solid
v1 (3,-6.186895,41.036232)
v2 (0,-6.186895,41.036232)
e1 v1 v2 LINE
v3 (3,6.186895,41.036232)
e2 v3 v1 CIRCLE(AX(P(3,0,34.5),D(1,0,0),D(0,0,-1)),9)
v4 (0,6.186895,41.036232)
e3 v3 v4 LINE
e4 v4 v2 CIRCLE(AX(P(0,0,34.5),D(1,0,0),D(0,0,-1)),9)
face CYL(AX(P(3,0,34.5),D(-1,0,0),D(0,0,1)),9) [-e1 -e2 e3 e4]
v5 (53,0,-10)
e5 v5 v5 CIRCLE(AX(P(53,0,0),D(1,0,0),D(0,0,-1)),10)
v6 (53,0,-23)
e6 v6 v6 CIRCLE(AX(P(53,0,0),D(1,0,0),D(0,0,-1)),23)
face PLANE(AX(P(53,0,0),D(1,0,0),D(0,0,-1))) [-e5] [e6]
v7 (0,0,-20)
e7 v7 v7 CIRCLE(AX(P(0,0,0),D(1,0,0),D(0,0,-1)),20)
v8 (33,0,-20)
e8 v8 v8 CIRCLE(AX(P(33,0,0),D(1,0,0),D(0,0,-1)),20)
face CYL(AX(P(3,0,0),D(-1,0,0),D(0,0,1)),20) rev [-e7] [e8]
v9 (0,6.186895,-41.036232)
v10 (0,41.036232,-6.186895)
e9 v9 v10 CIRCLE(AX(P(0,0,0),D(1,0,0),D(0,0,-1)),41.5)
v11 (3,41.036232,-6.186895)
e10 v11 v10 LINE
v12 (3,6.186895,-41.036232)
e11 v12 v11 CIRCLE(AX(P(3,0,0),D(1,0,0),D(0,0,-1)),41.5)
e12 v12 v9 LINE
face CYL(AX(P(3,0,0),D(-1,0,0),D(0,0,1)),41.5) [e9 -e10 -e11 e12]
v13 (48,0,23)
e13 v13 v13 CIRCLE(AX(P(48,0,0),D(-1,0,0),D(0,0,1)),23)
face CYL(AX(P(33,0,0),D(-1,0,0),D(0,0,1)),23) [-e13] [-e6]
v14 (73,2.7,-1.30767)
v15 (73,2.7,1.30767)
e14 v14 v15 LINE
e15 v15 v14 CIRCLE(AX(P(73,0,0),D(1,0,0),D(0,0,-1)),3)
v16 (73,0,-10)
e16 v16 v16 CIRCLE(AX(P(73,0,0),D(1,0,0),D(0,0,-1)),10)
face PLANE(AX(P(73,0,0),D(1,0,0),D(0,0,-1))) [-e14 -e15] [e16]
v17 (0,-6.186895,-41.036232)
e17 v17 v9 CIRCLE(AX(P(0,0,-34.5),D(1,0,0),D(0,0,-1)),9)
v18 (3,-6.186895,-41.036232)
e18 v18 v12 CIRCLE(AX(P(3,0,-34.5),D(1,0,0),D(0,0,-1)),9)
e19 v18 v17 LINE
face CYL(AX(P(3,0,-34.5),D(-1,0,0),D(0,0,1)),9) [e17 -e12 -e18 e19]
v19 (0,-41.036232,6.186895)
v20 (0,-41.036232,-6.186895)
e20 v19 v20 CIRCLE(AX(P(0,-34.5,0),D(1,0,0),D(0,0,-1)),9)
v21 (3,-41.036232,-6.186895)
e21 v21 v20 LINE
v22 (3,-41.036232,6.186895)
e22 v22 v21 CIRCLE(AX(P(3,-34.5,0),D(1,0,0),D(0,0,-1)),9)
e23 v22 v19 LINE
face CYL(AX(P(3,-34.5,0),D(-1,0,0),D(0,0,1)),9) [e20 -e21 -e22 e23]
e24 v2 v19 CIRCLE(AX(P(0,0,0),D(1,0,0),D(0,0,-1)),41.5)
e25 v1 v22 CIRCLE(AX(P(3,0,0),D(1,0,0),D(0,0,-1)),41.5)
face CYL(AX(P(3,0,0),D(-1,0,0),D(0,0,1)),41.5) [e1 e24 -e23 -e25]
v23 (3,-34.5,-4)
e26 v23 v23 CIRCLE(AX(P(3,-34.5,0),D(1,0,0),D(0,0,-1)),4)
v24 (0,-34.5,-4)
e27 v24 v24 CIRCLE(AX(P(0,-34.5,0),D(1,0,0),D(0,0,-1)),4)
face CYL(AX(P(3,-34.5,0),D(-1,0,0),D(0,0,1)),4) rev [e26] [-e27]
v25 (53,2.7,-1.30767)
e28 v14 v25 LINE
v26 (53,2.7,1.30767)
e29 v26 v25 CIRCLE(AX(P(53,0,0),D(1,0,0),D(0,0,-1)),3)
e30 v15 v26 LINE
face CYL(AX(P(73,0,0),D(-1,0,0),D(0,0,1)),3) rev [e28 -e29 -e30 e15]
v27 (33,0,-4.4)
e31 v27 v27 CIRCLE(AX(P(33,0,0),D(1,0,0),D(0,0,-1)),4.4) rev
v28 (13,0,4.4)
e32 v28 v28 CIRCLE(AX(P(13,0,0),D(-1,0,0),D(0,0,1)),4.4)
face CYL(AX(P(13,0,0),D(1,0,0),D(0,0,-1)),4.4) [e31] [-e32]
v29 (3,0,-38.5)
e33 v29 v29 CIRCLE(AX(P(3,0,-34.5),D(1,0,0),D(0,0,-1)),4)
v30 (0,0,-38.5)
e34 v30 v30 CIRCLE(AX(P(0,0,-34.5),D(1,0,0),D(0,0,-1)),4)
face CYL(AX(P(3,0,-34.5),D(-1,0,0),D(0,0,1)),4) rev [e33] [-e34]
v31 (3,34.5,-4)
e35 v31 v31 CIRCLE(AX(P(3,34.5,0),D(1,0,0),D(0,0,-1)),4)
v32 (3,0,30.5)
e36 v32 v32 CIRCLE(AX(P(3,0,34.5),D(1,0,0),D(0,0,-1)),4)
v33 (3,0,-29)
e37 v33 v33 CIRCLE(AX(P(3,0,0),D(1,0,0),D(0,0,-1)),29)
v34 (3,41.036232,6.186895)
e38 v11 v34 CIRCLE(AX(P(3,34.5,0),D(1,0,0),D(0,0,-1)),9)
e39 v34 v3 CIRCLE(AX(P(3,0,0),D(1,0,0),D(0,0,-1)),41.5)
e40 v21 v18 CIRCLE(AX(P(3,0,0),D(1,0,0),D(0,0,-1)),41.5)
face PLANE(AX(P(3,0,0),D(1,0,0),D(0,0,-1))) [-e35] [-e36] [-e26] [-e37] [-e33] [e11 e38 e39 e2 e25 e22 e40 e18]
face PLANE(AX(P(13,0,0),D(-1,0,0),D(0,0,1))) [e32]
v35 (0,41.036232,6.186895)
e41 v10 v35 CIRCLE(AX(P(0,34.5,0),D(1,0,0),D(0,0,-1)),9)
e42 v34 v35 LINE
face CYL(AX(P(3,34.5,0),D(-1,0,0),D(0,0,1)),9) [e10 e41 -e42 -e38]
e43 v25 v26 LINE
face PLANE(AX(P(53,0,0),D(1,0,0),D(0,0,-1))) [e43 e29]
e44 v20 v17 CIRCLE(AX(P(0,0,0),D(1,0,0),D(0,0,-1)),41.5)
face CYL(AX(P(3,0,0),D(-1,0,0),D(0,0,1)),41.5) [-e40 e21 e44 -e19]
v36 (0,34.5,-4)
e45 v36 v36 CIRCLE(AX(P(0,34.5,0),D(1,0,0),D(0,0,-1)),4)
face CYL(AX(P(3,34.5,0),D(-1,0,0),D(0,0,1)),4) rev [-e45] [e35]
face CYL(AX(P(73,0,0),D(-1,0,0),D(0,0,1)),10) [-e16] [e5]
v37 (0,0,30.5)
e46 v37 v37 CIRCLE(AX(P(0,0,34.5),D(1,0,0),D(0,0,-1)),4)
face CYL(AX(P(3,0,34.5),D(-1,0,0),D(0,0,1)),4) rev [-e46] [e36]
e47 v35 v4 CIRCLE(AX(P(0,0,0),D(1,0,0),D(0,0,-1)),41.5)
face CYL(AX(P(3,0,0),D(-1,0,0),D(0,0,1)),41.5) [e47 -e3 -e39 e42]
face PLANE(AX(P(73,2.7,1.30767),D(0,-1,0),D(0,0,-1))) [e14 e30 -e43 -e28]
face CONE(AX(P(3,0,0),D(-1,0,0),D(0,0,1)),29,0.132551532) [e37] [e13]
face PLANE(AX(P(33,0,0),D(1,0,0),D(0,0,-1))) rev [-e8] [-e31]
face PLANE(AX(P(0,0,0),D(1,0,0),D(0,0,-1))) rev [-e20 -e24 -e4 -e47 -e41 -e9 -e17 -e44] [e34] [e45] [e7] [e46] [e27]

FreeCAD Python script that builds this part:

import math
import FreeCAD as App
import Part
import Sketcher
from FreeCAD import Vector
Q = App.Units.Quantity


def add_polygon(sketch, points):
    """Adds a closed chain of lines whose ends are joined by coincident constraints."""
    first, n = sketch.GeometryCount, len(points)
    for a, b in zip(points, points[1:] + points[:1]):
        sketch.addGeometry(Part.LineSegment(App.Vector(*a, 0), App.Vector(*b, 0)), False)
    for i in range(n):
        sketch.addConstraint(Sketcher.Constraint("Coincident", first + i, 2, first + (i + 1) % n, 1))

doc = App.newDocument("Part")
params = doc.addObject("Spreadsheet::Sheet", "Params")
for row, (alias, value) in enumerate([
    ("sketch1_diameter", "8 mm"),
    ("sketch1_diameter2", "40 mm"),
    ("sketch1_radius", "9 mm"),
    ("sketch1_radius2", "41.5 mm"),
    ("pad1_length", "3 mm"),
    ("sketch2_diameter", "46 mm"),
    ("sketch2_diameter2", "40 mm"),
    ("pad2_length", "30 mm"),
    ("sketch3_diameter", "46 mm"),
    ("pad3_length", "20 mm"),
    ("sketch4_diameter", "8.8 mm"),
    ("pad4_length", "20 mm"),
    ("sketch5_width", "45 mm"),
    ("sketch5_height", "6 mm"),
    ("revolution_angle", "360 deg"),
    ("sketch6_diameter", "20 mm"),
    ("sketch6_radius", "3 mm"),
    ("pad5_length", "20 mm"),
], start=1):
    params.set(f"A{row}", alias)
    params.set(f"B{row}", "=" + value)
    params.setAlias(f"B{row}", alias)

body = doc.addObject("PartDesign::Body", "Body")

# Sketch on YZ plane
sketch1 = doc.addObject("Sketcher::SketchObject", "Sketch")
body.addObject(sketch1)
sketch1.AttachmentSupport = (doc.YZ_Plane, [""])
sketch1.MapMode = "FlatFace"
sketch1.addGeometry([
    Part.ArcOfCircle(Part.Circle(Vector(34.5, 0, 0), Vector(0, 0, 1), 9), math.radians(-43.427235), math.radians(43.427235)),  # 0
    Part.ArcOfCircle(Part.Circle(Vector(0, 0, 0), Vector(0, 0, 1), 41.5), math.radians(8.57372), math.radians(81.42628)),  # 1
    Part.ArcOfCircle(Part.Circle(Vector(0, 34.5, 0), Vector(0, 0, 1), 9), math.radians(46.572765), math.radians(133.427235)),  # 2
    Part.ArcOfCircle(Part.Circle(Vector(0, 0, 0), Vector(0, 0, 1), 41.5), math.radians(98.57372), math.radians(171.42628)),  # 3
    Part.ArcOfCircle(Part.Circle(Vector(-34.5, 0, 0), Vector(0, 0, 1), 9), math.radians(136.572765), math.radians(223.427235)),  # 4
    Part.ArcOfCircle(Part.Circle(Vector(0, 0, 0), Vector(0, 0, 1), 41.5), math.radians(-171.42628), math.radians(-98.57372)),  # 5
    Part.ArcOfCircle(Part.Circle(Vector(0, -34.5, 0), Vector(0, 0, 1), 9), math.radians(-133.427235), math.radians(-46.572765)),  # 6
    Part.ArcOfCircle(Part.Circle(Vector(0, 0, 0), Vector(0, 0, 1), 41.5), math.radians(-81.42628), math.radians(-8.57372)),  # 7
    Part.Circle(Vector(-34.5, 0, 0), Vector(0, 0, 1), 4),  # 8
    Part.Circle(Vector(0, 34.5, 0), Vector(0, 0, 1), 4),  # 9
    Part.Circle(Vector(0, 0, 0), Vector(0, 0, 1), 20),  # 10
    Part.Circle(Vector(0, -34.5, 0), Vector(0, 0, 1), 4),  # 11
    Part.Circle(Vector(34.5, 0, 0), Vector(0, 0, 1), 4),  # 12
], False)
sketch1.addConstraint([
    Sketcher.Constraint("Coincident", 0, 2, 1, 1),
    Sketcher.Constraint("Coincident", 1, 2, 2, 1),
    Sketcher.Constraint("Coincident", 2, 2, 3, 1),
    Sketcher.Constraint("Coincident", 3, 2, 4, 1),
    Sketcher.Constraint("Coincident", 4, 2, 5, 1),
    Sketcher.Constraint("Coincident", 5, 2, 6, 1),
    Sketcher.Constraint("Coincident", 6, 2, 7, 1),
    Sketcher.Constraint("Coincident", 7, 2, 0, 1),
    Sketcher.Constraint("Coincident", 1, 3, -1, 1),
    Sketcher.Constraint("Coincident", 3, 3, -1, 1),
    Sketcher.Constraint("Coincident", 5, 3, -1, 1),
    Sketcher.Constraint("Coincident", 7, 3, -1, 1),
    Sketcher.Constraint("Coincident", 10, 3, -1, 1),
    Sketcher.Constraint("Coincident", 8, 3, 4, 3),
    Sketcher.Constraint("Coincident", 9, 3, 2, 3),
    Sketcher.Constraint("Coincident", 11, 3, 6, 3),
    Sketcher.Constraint("Coincident", 12, 3, 0, 3),
    Sketcher.Constraint("Equal", 0, 2),
    Sketcher.Constraint("Equal", 1, 3),
    Sketcher.Constraint("Equal", 2, 4),
    Sketcher.Constraint("Equal", 3, 5),
    Sketcher.Constraint("Equal", 4, 6),
    Sketcher.Constraint("Equal", 5, 7),
    Sketcher.Constraint("Equal", 8, 9),
    Sketcher.Constraint("Equal", 9, 11),
    Sketcher.Constraint("Equal", 11, 12),
    Sketcher.Constraint("Symmetric", 0, 3, 4, 3, -1, 1),
    Sketcher.Constraint("Symmetric", 2, 3, 6, 3, -1, 1),
    Sketcher.Constraint("PointOnObject", 0, 3, -1),
    Sketcher.Constraint("PointOnObject", 2, 3, -2),
    Sketcher.Constraint("Diameter", 8, Q("8 mm")),
    Sketcher.Constraint("Diameter", 10, Q("40 mm")),
    Sketcher.Constraint("Radius", 0, Q("9 mm")),
    Sketcher.Constraint("Radius", 1, Q("41.5 mm")),
    Sketcher.Constraint("DistanceX", 4, 3, 0, 3, Q("69 mm")),
    Sketcher.Constraint("DistanceY", -1, 1, 2, 3, Q("34.5 mm")),
])
sketch1.setExpression("Constraints[30]", "Params.sketch1_diameter")
sketch1.setExpression("Constraints[31]", "Params.sketch1_diameter2")
sketch1.setExpression("Constraints[32]", "Params.sketch1_radius")
sketch1.setExpression("Constraints[33]", "Params.sketch1_radius2")
pad1 = doc.addObject("PartDesign::Pad", "Pad")
body.addObject(pad1)
pad1.Profile = sketch1
pad1.setExpression("Length", "Params.pad1_length")

# Sketch on YZ plane
sketch2 = doc.addObject("Sketcher::SketchObject", "Sketch001")
body.addObject(sketch2)
sketch2.AttachmentSupport = (doc.YZ_Plane, [""])
sketch2.MapMode = "FlatFace"
sketch2.AttachmentOffset = App.Placement(Vector(0, 0, 3), App.Rotation())
sketch2.addGeometry([
    Part.Circle(Vector(0, 0, 0), Vector(0, 0, 1), 23),
    Part.Circle(Vector(0, 0, 0), Vector(0, 0, 1), 20),
], False)
sketch2.addConstraint([
    Sketcher.Constraint("Coincident", 0, 3, -1, 1),
    Sketcher.Constraint("Coincident", 1, 3, -1, 1),
    Sketcher.Constraint("Diameter", 0, Q("46 mm")),
    Sketcher.Constraint("Diameter", 1, Q("40 mm")),
])
sketch2.setExpression("Constraints[2]", "Params.sketch2_diameter")
sketch2.setExpression("Constraints[3]", "Params.sketch2_diameter2")
pad2 = doc.addObject("PartDesign::Pad", "Pad001")
body.addObject(pad2)
pad2.Profile = sketch2
pad2.setExpression("Length", "Params.pad2_length")

# Sketch on YZ plane
sketch3 = doc.addObject("Sketcher::SketchObject", "Sketch002")
body.addObject(sketch3)
sketch3.AttachmentSupport = (doc.YZ_Plane, [""])
sketch3.MapMode = "FlatFace"
sketch3.AttachmentOffset = App.Placement(Vector(0, 0, 33), App.Rotation())
sketch3.addGeometry(Part.Circle(Vector(0, 0, 0), Vector(0, 0, 1), 23), False)
sketch3.addConstraint([
    Sketcher.Constraint("Coincident", 0, 3, -1, 1),
    Sketcher.Constraint("Diameter", 0, Q("46 mm")),
])
sketch3.setExpression("Constraints[1]", "Params.sketch3_diameter")
pad3 = doc.addObject("PartDesign::Pad", "Pad002")
body.addObject(pad3)
pad3.Profile = sketch3
pad3.setExpression("Length", "Params.pad3_length")

# Sketch on YZ plane
sketch4 = doc.addObject("Sketcher::SketchObject", "Sketch003")
body.addObject(sketch4)
sketch4.AttachmentSupport = (doc.YZ_Plane, [""])
sketch4.MapMode = "FlatFace"
sketch4.AttachmentOffset = App.Placement(Vector(0, 0, 33), App.Rotation())
sketch4.addGeometry(Part.Circle(Vector(0, 0, 0), Vector(0, 0, 1), 4.4), False)
sketch4.addConstraint([
    Sketcher.Constraint("Coincident", 0, 3, -1, 1),
    Sketcher.Constraint("Diameter", 0, Q("8.8 mm")),
])
sketch4.setExpression("Constraints[1]", "Params.sketch4_diameter")
pad4 = doc.addObject("PartDesign::Pad", "Pad003")
body.addObject(pad4)
pad4.Profile = sketch4
pad4.setExpression("Length", "Params.pad4_length")
pad4.Reversed = True

# Sketch on XZ plane
sketch5 = doc.addObject("Sketcher::SketchObject", "Sketch004")
body.addObject(sketch5)
sketch5.AttachmentSupport = (doc.XZ_Plane, [""])
sketch5.MapMode = "FlatFace"
add_polygon(sketch5, [(3, 29), (48, 23), (3, 23)])  # lines 0-2
sketch5.addConstraint([
    Sketcher.Constraint("Horizontal", 1),
    Sketcher.Constraint("Vertical", 2),
    Sketcher.Constraint("DistanceX", 1, 2, 1, 1, Q("45 mm")),
    Sketcher.Constraint("DistanceY", 2, 1, 2, 2, Q("6 mm")),
    Sketcher.Constraint("DistanceX", -1, 1, 0, 2, Q("48 mm")),
    Sketcher.Constraint("DistanceY", -1, 1, 0, 2, Q("23 mm")),
])
sketch5.setExpression("Constraints[5]", "Params.sketch5_width")
sketch5.setExpression("Constraints[6]", "Params.sketch5_height")
revolution = doc.addObject("PartDesign::Revolution", "Revolution")
body.addObject(revolution)
revolution.Profile = sketch5
revolution.ReferenceAxis = (sketch5, ["H_Axis"])
revolution.setExpression("Angle", "Params.revolution_angle")

# Sketch on YZ plane
sketch6 = doc.addObject("Sketcher::SketchObject", "Sketch005")
body.addObject(sketch6)
sketch6.AttachmentSupport = (doc.YZ_Plane, [""])
sketch6.MapMode = "FlatFace"
sketch6.AttachmentOffset = App.Placement(Vector(0, 0, 53), App.Rotation())
sketch6.addGeometry([
    Part.Circle(Vector(0, 0, 0), Vector(0, 0, 1), 10),
    Part.ArcOfCircle(Part.Circle(Vector(0, 0, 0), Vector(0, 0, 1), 3), math.radians(25.841933), math.radians(334.158067)),
    Part.LineSegment(Vector(2.7, 1.30767, 0), Vector(2.7, -1.30767, 0)),
], False)
sketch6.addConstraint([
    Sketcher.Constraint("Coincident", 1, 1, 2, 1),
    Sketcher.Constraint("Coincident", 2, 2, 1, 2),
    Sketcher.Constraint("Vertical", 2),
    Sketcher.Constraint("Coincident", 0, 3, -1, 1),
    Sketcher.Constraint("Coincident", 1, 3, -1, 1),
    Sketcher.Constraint("Diameter", 0, Q("20 mm")),
    Sketcher.Constraint("Radius", 1, Q("3 mm")),
    Sketcher.Constraint("DistanceX", -1, 1, 1, 1, Q("2.7 mm")),
])
sketch6.setExpression("Constraints[5]", "Params.sketch6_diameter")
sketch6.setExpression("Constraints[6]", "Params.sketch6_radius")
pad5 = doc.addObject("PartDesign::Pad", "Pad004")
body.addObject(pad5)
pad5.Profile = sketch6
pad5.setExpression("Length", "Params.pad5_length")

doc.recompute()
